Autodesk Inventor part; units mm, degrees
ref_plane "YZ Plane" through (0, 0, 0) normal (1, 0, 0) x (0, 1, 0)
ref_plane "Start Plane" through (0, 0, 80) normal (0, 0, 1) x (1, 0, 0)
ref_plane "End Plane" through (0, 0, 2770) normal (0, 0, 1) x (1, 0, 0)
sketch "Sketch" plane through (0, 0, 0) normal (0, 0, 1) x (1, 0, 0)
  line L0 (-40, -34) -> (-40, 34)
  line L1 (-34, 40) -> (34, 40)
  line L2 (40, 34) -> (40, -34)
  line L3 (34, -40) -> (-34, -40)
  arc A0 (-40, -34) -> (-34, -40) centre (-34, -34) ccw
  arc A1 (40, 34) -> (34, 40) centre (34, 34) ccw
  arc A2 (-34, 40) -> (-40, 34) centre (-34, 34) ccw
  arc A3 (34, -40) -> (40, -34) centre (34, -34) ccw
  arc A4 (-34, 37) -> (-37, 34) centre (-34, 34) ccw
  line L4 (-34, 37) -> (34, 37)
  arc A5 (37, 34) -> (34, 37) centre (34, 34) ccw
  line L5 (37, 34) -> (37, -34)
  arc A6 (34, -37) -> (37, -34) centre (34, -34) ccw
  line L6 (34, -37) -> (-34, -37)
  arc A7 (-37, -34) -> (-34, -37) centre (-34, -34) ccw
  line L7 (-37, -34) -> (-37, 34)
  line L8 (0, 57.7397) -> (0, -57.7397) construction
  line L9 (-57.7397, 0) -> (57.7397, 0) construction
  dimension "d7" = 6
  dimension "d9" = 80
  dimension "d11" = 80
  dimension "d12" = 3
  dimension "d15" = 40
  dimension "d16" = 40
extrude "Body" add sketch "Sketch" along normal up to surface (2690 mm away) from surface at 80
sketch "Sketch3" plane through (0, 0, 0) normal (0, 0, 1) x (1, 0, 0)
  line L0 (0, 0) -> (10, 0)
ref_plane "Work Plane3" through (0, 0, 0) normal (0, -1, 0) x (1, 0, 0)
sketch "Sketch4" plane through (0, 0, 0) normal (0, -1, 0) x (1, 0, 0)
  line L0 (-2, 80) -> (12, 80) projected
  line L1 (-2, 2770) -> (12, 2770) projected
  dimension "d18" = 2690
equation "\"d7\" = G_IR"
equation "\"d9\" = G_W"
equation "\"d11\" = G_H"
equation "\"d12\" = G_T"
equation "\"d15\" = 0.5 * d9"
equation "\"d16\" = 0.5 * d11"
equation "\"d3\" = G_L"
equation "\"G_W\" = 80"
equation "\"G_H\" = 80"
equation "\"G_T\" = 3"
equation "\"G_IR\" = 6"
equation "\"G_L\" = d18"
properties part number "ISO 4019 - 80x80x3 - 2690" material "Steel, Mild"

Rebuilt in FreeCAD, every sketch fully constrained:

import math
import FreeCAD as App
import Part
import Sketcher
from FreeCAD import Vector

doc = App.newDocument("Part")
body = doc.addObject("PartDesign::Body", "Body")

# Sketch on XY plane
sketch1 = doc.addObject("Sketcher::SketchObject", "Sketch")
body.addObject(sketch1)
sketch1.AttachmentSupport = (doc.XY_Plane, [""])
sketch1.MapMode = "FlatFace"
sketch1.AttachmentOffset = App.Placement(Vector(0, 0, 80), App.Rotation())
sketch1.addGeometry(Part.LineSegment(Vector(-40, 34, 0), Vector(-40, -34, 0)), False)
sketch1.addGeometry(Part.ArcOfCircle(Part.Circle(Vector(-34, -34, 0), Vector(0, 0, 1), 6), math.radians(180), math.radians(270)), False)
sketch1.addGeometry(Part.LineSegment(Vector(-34, -40, 0), Vector(34, -40, 0)), False)
sketch1.addGeometry(Part.ArcOfCircle(Part.Circle(Vector(34, -34, 0), Vector(0, 0, 1), 6), math.radians(-90), math.radians(0)), False)
sketch1.addGeometry(Part.LineSegment(Vector(40, -34, 0), Vector(40, 34, 0)), False)
sketch1.addGeometry(Part.ArcOfCircle(Part.Circle(Vector(34, 34, 0), Vector(0, 0, 1), 6), math.radians(0), math.radians(90)), False)
sketch1.addGeometry(Part.LineSegment(Vector(34, 40, 0), Vector(-34, 40, 0)), False)
sketch1.addGeometry(Part.ArcOfCircle(Part.Circle(Vector(-34, 34, 0), Vector(0, 0, 1), 6), math.radians(90), math.radians(180)), False)
sketch1.addGeometry(Part.ArcOfCircle(Part.Circle(Vector(-34, 34, 0), Vector(0, 0, 1), 3), math.radians(90), math.radians(180)), False)
sketch1.addGeometry(Part.LineSegment(Vector(-34, 37, 0), Vector(34, 37, 0)), False)
sketch1.addGeometry(Part.ArcOfCircle(Part.Circle(Vector(34, 34, 0), Vector(0, 0, 1), 3), math.radians(0), math.radians(90)), False)
sketch1.addGeometry(Part.LineSegment(Vector(37, 34, 0), Vector(37, -34, 0)), False)
sketch1.addGeometry(Part.ArcOfCircle(Part.Circle(Vector(34, -34, 0), Vector(0, 0, 1), 3), math.radians(-90), math.radians(0)), False)
sketch1.addGeometry(Part.LineSegment(Vector(34, -37, 0), Vector(-34, -37, 0)), False)
sketch1.addGeometry(Part.ArcOfCircle(Part.Circle(Vector(-34, -34, 0), Vector(0, 0, 1), 3), math.radians(180), math.radians(270)), False)
sketch1.addGeometry(Part.LineSegment(Vector(-37, -34, 0), Vector(-37, 34, 0)), False)
sketch1.addConstraint(Sketcher.Constraint("Tangent", 0, 2, 1, 1))
sketch1.addConstraint(Sketcher.Constraint("Tangent", 1, 2, 2, 1))
sketch1.addConstraint(Sketcher.Constraint("Tangent", 2, 2, 3, 1))
sketch1.addConstraint(Sketcher.Constraint("Tangent", 3, 2, 4, 1))
sketch1.addConstraint(Sketcher.Constraint("Tangent", 4, 2, 5, 1))
sketch1.addConstraint(Sketcher.Constraint("Tangent", 5, 2, 6, 1))
sketch1.addConstraint(Sketcher.Constraint("Tangent", 6, 2, 7, 1))
sketch1.addConstraint(Sketcher.Constraint("Tangent", 7, 2, 0, 1))
sketch1.addConstraint(Sketcher.Constraint("Tangent", 8, 1, 9, 1))
sketch1.addConstraint(Sketcher.Constraint("Tangent", 9, 2, 10, 2))
sketch1.addConstraint(Sketcher.Constraint("Tangent", 10, 1, 11, 1))
sketch1.addConstraint(Sketcher.Constraint("Tangent", 11, 2, 12, 2))
sketch1.addConstraint(Sketcher.Constraint("Tangent", 12, 1, 13, 1))
sketch1.addConstraint(Sketcher.Constraint("Tangent", 13, 2, 14, 2))
sketch1.addConstraint(Sketcher.Constraint("Tangent", 14, 1, 15, 1))
sketch1.addConstraint(Sketcher.Constraint("Tangent", 15, 2, 8, 2))
sketch1.addConstraint(Sketcher.Constraint("Vertical", 0))
sketch1.addConstraint(Sketcher.Constraint("Horizontal", 2))
sketch1.addConstraint(Sketcher.Constraint("Vertical", 4))
sketch1.addConstraint(Sketcher.Constraint("Horizontal", 6))
sketch1.addConstraint(Sketcher.Constraint("Horizontal", 9))
sketch1.addConstraint(Sketcher.Constraint("Vertical", 11))
sketch1.addConstraint(Sketcher.Constraint("Horizontal", 13))
sketch1.addConstraint(Sketcher.Constraint("Vertical", 15))
sketch1.addConstraint(Sketcher.Constraint("Coincident", 8, 3, 7, 3))
sketch1.addConstraint(Sketcher.Constraint("Coincident", 10, 3, 5, 3))
sketch1.addConstraint(Sketcher.Constraint("Coincident", 12, 3, 3, 3))
sketch1.addConstraint(Sketcher.Constraint("Equal", 1, 3))
sketch1.addConstraint(Sketcher.Constraint("Equal", 3, 5))
sketch1.addConstraint(Sketcher.Constraint("Equal", 5, 7))
sketch1.addConstraint(Sketcher.Constraint("Equal", 12, 14))
sketch1.addConstraint(Sketcher.Constraint("Symmetric", 1, 3, 5, 3, -1, 1))
sketch1.addConstraint(Sketcher.Constraint("Equal", 13, 0))
sketch1.addConstraint(Sketcher.Constraint("Radius", 1, 6.0))
sketch1.addConstraint(Sketcher.Constraint("Radius", 8, 3.0))
sketch1.addConstraint(Sketcher.Constraint("DistanceX", 0, 2, -1, 1, 40.0))
pad1 = doc.addObject("PartDesign::Pad", "Pad")
body.addObject(pad1)
pad1.Profile = sketch1
pad1.Length = 2690

doc.recompute()
